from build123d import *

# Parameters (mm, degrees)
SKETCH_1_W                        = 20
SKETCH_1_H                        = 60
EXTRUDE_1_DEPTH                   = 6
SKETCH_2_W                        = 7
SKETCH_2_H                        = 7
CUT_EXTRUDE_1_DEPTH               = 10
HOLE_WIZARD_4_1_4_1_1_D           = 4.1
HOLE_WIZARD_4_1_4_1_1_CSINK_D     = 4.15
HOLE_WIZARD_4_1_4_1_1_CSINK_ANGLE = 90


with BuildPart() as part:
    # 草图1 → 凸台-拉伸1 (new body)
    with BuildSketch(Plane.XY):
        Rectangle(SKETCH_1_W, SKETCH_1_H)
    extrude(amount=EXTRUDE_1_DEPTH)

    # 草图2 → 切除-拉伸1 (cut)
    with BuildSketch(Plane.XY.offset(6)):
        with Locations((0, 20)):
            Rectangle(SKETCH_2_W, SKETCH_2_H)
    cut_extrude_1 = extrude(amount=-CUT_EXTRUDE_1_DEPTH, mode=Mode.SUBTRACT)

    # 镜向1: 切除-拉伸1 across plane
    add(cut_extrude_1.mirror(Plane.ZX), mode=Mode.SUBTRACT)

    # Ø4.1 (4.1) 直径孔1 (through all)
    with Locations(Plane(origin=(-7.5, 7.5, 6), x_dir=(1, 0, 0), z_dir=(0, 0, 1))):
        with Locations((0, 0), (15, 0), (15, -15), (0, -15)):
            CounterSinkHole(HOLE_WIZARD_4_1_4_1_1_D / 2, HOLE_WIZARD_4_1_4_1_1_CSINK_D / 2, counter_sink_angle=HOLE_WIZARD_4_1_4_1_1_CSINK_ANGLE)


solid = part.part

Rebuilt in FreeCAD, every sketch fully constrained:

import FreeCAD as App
import Part
import Sketcher

V = App.Vector
Q = App.Units.Quantity

doc = App.newDocument("Part")
body = doc.addObject("PartDesign::Body", "Body")

# Sketch on XY plane
sketch1 = doc.addObject("Sketcher::SketchObject", "Sketch")
body.addObject(sketch1)
sketch1.AttachmentSupport = (doc.XY_Plane, [""])
sketch1.MapMode = "FlatFace"
sketch1.addGeometry([
    Part.LineSegment(V(-10, 30, 0), V(-10, -30, 0)),
    Part.LineSegment(V(-10, -30, 0), V(10, -30, 0)),
    Part.LineSegment(V(10, -30, 0), V(10, 30, 0)),
    Part.LineSegment(V(10, 30, 0), V(-10, 30, 0)),
], False)
sketch1.addConstraint([
    Sketcher.Constraint("Coincident", 0, 2, 1, 1),
    Sketcher.Constraint("Coincident", 1, 2, 2, 1),
    Sketcher.Constraint("Coincident", 2, 2, 3, 1),
    Sketcher.Constraint("Coincident", 3, 2, 0, 1),
    Sketcher.Constraint("Vertical", 0),
    Sketcher.Constraint("Horizontal", 1),
    Sketcher.Constraint("Vertical", 2),
    Sketcher.Constraint("Horizontal", 3),
    Sketcher.Constraint("Symmetric", 0, 2, 2, 2, -1, 1),
    Sketcher.Constraint("DistanceX", 1, 1, 1, 2, Q("20 mm")),
    Sketcher.Constraint("DistanceY", 0, 2, 0, 1, Q("60 mm")),
])
pad1 = doc.addObject("PartDesign::Pad", "Pad")
body.addObject(pad1)
pad1.Profile = sketch1
pad1.Length = 6

# Sketch on XY plane
sketch2 = doc.addObject("Sketcher::SketchObject", "Sketch001")
body.addObject(sketch2)
sketch2.AttachmentSupport = (doc.XY_Plane, [""])
sketch2.MapMode = "FlatFace"
sketch2.AttachmentOffset = App.Placement(V(0, 0, 6), App.Rotation())
sketch2.addGeometry([
    Part.LineSegment(V(-4, 24, 0), V(-4, 16, 0)),
    Part.LineSegment(V(-4, 16, 0), V(4, 16, 0)),
    Part.LineSegment(V(4, 16, 0), V(4, 24, 0)),
    Part.LineSegment(V(4, 24, 0), V(-4, 24, 0)),
], False)
sketch2.addConstraint([
    Sketcher.Constraint("Coincident", 0, 2, 1, 1),
    Sketcher.Constraint("Coincident", 1, 2, 2, 1),
    Sketcher.Constraint("Coincident", 2, 2, 3, 1),
    Sketcher.Constraint("Coincident", 3, 2, 0, 1),
    Sketcher.Constraint("Vertical", 0),
    Sketcher.Constraint("Horizontal", 1),
    Sketcher.Constraint("Vertical", 2),
    Sketcher.Constraint("Horizontal", 3),
    Sketcher.Constraint("Equal", 3, 0),
    Sketcher.Constraint("DistanceX", 1, 1, 1, 2, Q("7 mm")),
    Sketcher.Constraint("DistanceX", 0, 2, -1, 1, Q("3.5 mm")),
    Sketcher.Constraint("DistanceY", -1, 1, 0, 2, Q("16.5 mm")),
])
pocket1 = doc.addObject("PartDesign::Pocket", "Pocket")
body.addObject(pocket1)
pocket1.Profile = sketch2
pocket1.Length = 10
doc.recompute()

mirrored = doc.addObject("PartDesign::Mirrored", "Mirrored")
body.addObject(mirrored)
mirrored.Originals = [pocket1]
mirrored.MirrorPlane = (doc.XZ_Plane, [""])
body.Tip = mirrored

# Sketch on XY plane
sketch3 = doc.addObject("Sketcher::SketchObject", "Sketch002")
body.addObject(sketch3)
sketch3.AttachmentSupport = (doc.XY_Plane, [""])
sketch3.MapMode = "FlatFace"
sketch3.AttachmentOffset = App.Placement(V(0, 0, 6), App.Rotation())
sketch3.addGeometry([
    Part.Circle(V(-7.5, 7.5, 0), V(0, 0, 1), 2),
    Part.Circle(V(7.5, 7.5, 0), V(0, 0, 1), 2),
    Part.Circle(V(7.5, -7.5, 0), V(0, 0, 1), 2),
    Part.Circle(V(-7.5, -7.5, 0), V(0, 0, 1), 2),
], False)
sketch3.addConstraint([
    Sketcher.Constraint("Equal", 0, 1),
    Sketcher.Constraint("Equal", 1, 2),
    Sketcher.Constraint("Equal", 2, 3),
    Sketcher.Constraint("Symmetric", 0, 3, 2, 3, -1, 1),
    Sketcher.Constraint("Symmetric", 1, 3, 3, 3, -1, 1),
    Sketcher.Constraint("Symmetric", 0, 3, 1, 3, -2),
    Sketcher.Constraint("Diameter", 0, Q("4.1 mm")),
    Sketcher.Constraint("DistanceX", 0, 3, 1, 3, Q("15 mm")),
    Sketcher.Constraint("DistanceY", 2, 3, 1, 3, Q("15 mm")),
])
doc.recompute()
hole = doc.addObject("PartDesign::Hole", "Hole")
body.addObject(hole)
hole.Profile = sketch3
hole.ThreadType = "None"
hole.Diameter = 4.1
hole.DepthType = "ThroughAll"
hole.HoleCutType = "Countersink"
hole.HoleCutDiameter = 4.15
hole.HoleCutCountersinkAngle = 90

doc.recompute()
